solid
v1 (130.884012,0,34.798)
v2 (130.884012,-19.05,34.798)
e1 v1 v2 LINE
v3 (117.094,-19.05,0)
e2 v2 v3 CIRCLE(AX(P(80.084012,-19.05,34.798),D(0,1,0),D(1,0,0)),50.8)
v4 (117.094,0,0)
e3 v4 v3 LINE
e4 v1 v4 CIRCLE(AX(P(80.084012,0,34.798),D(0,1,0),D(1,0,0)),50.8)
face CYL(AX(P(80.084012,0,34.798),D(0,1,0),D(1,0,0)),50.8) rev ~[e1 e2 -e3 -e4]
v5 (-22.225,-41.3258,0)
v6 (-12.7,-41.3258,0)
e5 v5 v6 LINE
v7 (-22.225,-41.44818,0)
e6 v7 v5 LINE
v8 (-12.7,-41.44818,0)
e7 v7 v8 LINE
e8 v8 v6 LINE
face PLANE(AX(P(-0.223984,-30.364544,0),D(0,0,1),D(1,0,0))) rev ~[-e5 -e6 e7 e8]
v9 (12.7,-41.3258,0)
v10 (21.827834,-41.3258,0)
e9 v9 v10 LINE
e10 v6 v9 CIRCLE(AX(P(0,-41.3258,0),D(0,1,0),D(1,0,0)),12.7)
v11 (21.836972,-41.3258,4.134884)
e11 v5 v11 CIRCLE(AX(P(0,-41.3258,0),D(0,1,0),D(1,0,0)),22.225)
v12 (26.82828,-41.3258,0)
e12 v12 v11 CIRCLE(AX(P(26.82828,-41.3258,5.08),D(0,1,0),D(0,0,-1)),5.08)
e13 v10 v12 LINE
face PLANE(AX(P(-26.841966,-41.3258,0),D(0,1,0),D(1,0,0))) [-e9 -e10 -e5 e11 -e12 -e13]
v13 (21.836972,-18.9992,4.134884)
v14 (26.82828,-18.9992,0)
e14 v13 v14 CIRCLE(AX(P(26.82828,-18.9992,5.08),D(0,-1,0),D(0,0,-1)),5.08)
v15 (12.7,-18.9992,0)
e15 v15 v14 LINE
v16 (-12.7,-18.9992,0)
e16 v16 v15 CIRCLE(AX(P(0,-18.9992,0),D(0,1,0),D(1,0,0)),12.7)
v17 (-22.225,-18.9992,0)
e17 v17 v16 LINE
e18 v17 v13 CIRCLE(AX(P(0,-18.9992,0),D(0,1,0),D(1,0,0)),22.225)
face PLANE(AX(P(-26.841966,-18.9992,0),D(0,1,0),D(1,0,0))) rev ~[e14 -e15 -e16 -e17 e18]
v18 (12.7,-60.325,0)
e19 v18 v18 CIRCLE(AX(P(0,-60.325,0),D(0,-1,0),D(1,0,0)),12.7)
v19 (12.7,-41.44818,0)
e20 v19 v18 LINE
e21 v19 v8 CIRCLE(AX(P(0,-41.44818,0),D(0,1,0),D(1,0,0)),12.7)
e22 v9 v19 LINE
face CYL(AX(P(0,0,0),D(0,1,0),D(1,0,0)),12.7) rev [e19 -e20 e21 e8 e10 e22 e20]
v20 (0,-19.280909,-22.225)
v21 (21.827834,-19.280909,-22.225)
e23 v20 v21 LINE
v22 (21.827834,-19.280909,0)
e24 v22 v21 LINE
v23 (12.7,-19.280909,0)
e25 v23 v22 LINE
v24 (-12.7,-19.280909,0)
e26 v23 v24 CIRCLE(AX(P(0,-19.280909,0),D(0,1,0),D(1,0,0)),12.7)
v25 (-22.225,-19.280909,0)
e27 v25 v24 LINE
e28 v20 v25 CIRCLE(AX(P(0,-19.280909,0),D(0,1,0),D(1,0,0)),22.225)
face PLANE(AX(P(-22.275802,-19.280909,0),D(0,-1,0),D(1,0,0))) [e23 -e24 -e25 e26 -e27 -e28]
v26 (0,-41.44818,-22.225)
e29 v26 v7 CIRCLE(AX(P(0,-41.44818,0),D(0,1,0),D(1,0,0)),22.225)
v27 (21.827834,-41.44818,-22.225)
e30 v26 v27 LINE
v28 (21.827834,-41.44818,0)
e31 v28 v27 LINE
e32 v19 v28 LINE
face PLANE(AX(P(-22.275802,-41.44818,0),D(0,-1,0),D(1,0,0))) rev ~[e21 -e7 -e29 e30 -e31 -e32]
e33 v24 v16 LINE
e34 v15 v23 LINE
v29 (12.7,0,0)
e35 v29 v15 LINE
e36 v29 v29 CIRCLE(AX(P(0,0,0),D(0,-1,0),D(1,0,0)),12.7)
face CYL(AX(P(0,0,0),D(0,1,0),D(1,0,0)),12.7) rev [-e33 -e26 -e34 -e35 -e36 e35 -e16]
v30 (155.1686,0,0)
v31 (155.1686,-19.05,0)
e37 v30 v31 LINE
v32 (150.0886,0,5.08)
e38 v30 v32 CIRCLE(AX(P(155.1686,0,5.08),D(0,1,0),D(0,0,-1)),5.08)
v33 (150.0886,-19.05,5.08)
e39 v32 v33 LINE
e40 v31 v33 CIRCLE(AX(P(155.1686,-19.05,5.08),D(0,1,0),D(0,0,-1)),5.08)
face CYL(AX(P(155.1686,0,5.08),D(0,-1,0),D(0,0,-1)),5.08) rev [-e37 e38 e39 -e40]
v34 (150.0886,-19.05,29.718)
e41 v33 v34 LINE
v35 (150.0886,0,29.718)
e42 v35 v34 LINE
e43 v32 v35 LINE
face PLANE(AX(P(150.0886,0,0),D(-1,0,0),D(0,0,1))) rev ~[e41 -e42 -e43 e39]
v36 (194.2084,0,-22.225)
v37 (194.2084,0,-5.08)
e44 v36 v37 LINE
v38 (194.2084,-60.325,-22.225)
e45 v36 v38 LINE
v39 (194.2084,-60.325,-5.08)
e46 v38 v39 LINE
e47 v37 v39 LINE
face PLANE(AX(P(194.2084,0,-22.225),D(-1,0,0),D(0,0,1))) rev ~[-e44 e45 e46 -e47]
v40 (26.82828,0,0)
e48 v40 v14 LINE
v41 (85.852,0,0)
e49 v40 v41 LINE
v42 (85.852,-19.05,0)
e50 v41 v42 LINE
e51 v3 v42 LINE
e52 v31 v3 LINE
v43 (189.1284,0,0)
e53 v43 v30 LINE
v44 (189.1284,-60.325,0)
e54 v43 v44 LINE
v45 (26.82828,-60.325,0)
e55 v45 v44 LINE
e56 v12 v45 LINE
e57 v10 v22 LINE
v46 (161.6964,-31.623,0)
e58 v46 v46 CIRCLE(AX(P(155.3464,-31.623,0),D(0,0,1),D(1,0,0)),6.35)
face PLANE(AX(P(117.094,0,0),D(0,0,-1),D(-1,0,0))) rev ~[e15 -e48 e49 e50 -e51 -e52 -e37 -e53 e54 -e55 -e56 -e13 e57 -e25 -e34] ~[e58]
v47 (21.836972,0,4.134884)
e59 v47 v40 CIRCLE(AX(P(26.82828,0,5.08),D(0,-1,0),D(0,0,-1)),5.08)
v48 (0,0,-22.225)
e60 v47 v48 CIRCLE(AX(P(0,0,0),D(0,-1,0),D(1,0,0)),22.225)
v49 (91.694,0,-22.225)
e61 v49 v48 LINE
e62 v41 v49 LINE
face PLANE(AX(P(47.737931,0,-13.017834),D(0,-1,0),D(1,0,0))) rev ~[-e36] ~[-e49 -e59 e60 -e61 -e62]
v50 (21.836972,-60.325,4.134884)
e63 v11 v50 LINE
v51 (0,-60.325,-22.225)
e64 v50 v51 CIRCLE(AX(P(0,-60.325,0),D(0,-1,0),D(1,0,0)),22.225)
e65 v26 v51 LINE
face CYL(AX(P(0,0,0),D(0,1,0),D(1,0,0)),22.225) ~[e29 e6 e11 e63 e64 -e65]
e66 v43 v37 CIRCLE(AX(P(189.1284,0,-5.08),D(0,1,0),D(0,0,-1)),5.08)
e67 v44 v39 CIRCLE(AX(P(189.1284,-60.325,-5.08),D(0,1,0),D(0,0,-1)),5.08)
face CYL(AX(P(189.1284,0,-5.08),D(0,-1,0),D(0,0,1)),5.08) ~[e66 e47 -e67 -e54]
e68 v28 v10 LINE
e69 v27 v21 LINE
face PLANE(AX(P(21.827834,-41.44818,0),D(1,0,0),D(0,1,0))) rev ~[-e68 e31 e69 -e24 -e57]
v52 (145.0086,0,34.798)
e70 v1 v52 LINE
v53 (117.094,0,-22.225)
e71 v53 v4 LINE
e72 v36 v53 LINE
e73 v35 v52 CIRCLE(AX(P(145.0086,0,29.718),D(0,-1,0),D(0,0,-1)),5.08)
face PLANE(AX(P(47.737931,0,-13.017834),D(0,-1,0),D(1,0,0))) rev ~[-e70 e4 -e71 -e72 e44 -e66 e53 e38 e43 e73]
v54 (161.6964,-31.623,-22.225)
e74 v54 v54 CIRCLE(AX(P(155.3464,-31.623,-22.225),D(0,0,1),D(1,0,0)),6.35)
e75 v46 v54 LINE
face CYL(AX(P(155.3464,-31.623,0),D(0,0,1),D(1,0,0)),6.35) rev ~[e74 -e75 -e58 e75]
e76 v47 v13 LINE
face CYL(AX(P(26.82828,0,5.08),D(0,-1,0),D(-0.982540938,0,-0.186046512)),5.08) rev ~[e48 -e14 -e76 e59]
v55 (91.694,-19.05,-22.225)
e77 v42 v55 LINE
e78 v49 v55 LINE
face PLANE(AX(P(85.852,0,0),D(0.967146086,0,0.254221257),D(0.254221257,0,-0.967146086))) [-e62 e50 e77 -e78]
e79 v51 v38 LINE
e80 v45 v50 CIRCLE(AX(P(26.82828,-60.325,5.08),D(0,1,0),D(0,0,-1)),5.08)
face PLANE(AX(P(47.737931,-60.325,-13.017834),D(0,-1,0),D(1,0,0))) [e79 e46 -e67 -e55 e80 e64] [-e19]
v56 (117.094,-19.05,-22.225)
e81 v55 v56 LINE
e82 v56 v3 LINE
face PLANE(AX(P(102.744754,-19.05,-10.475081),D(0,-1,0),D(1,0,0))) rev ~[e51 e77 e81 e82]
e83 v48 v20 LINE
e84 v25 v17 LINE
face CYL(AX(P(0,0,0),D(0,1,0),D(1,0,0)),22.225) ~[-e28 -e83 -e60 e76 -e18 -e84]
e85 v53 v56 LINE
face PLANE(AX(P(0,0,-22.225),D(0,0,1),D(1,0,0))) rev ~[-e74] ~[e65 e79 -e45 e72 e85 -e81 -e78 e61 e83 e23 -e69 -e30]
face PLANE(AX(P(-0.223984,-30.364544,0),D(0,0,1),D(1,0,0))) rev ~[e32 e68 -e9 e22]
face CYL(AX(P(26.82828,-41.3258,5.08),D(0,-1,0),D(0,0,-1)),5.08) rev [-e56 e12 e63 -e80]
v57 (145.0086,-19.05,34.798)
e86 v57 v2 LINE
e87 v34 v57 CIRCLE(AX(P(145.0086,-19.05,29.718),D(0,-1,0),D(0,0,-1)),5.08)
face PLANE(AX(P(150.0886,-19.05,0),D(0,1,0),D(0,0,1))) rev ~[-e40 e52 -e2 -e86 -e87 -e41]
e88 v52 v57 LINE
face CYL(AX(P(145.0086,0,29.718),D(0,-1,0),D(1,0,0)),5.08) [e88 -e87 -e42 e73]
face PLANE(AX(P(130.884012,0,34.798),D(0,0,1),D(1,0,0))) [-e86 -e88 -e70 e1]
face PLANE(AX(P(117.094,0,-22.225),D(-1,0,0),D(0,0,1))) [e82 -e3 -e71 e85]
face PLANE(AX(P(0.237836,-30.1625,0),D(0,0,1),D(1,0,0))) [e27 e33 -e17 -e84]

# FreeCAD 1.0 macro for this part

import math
import FreeCAD as App
import Part
import Sketcher
Q = App.Units.Quantity


def edges_at(feature, points):
    """Names of the edges that pass closest to the given points."""
    edges = feature.Shape.Edges
    near = lambda p: min(range(len(edges)), key=lambda i: edges[i].distToShape(Part.Vertex(*p))[0])
    return sorted({f"Edge{near(p) + 1}" for p in points})

doc = App.newDocument("Part")
body = doc.addObject("PartDesign::Body", "Body")

# Sketch on XZ plane
sketch1 = body.newObject("Sketcher::SketchObject", "Sketch")
sketch1.AttachmentSupport = (doc.getObject("XZ_Plane"), [""])
sketch1.MapMode = "FlatFace"
sketch1.addGeometry(Part.ArcOfCircle(Part.Circle(App.Vector(0, 0, 0), App.Vector(0, 0, 1), 22), math.radians(0), math.radians(270)), False)
sketch1.addGeometry(Part.LineSegment(App.Vector(0, -22, 0), App.Vector(194, -22, 0)), False)
sketch1.addGeometry(Part.LineSegment(App.Vector(194, -22, 0), App.Vector(194, 0, 0)), False)
sketch1.addGeometry(Part.LineSegment(App.Vector(194, 0, 0), App.Vector(150, 0, 0)), False)
sketch1.addGeometry(Part.LineSegment(App.Vector(150, 0, 0), App.Vector(150, 35, 0)), False)
sketch1.addGeometry(Part.LineSegment(App.Vector(150, 35, 0), App.Vector(131, 35, 0)), False)
sketch1.addGeometry(Part.ArcOfCircle(Part.Circle(App.Vector(80, 35, 0), App.Vector(0, 0, 1), 51), math.radians(-43), math.radians(0)), False)
sketch1.addGeometry(Part.LineSegment(App.Vector(117, 0, 0), App.Vector(22, 0, 0)), False)
sketch1.addGeometry(Part.Circle(App.Vector(0, 0, 0), App.Vector(0, 0, 1), 13), False)
sketch1.addConstraint(Sketcher.Constraint("Tangent", 0, 2, 1, 1))
sketch1.addConstraint(Sketcher.Constraint("Coincident", 1, 2, 2, 1))
sketch1.addConstraint(Sketcher.Constraint("Coincident", 2, 2, 3, 1))
sketch1.addConstraint(Sketcher.Constraint("Coincident", 3, 2, 4, 1))
sketch1.addConstraint(Sketcher.Constraint("Coincident", 4, 2, 5, 1))
sketch1.addConstraint(Sketcher.Constraint("Coincident", 5, 2, 6, 2))
sketch1.addConstraint(Sketcher.Constraint("Coincident", 6, 1, 7, 1))
sketch1.addConstraint(Sketcher.Constraint("Coincident", 7, 2, 0, 1))
sketch1.addConstraint(Sketcher.Constraint("Horizontal", 1))
sketch1.addConstraint(Sketcher.Constraint("Vertical", 2))
sketch1.addConstraint(Sketcher.Constraint("Horizontal", 3))
sketch1.addConstraint(Sketcher.Constraint("Vertical", 4))
sketch1.addConstraint(Sketcher.Constraint("Horizontal", 5))
sketch1.addConstraint(Sketcher.Constraint("Horizontal", 7))
sketch1.addConstraint(Sketcher.Constraint("Coincident", 0, 3, -1, 1))
sketch1.addConstraint(Sketcher.Constraint("Coincident", 8, 3, -1, 1))
sketch1.addConstraint(Sketcher.Constraint("PointOnObject", 2, 2, -1))
sketch1.addConstraint(Sketcher.Constraint("PointOnObject", 6, 1, -1))
sketch1.addConstraint(Sketcher.Constraint("Horizontal", 6, 3, 4, 2))
sketch1.addConstraint(Sketcher.Constraint("Diameter", 8, Q("1 in")))
sketch1.addConstraint(Sketcher.Constraint("Radius", 6, Q("2 in")))
sketch1.addConstraint(Sketcher.Constraint("Radius", 0, Q("0.875 in")))
sketch1.addConstraint(Sketcher.Constraint("DistanceY", 4, 1, 4, 2, Q("1.37 in")))
sketch1.addConstraint(Sketcher.Constraint("DistanceX", 1, 1, 1, 2, Q("7.646 in")))
sketch1.addConstraint(Sketcher.Constraint("DistanceX", 3, 2, 3, 1, Q("1.737 in")))
sketch1.addConstraint(Sketcher.Constraint("DistanceX", 7, 2, 7, 1, Q("3.735 in")))
pad1 = body.newObject("PartDesign::Pad", "Pad")
pad1.Profile = sketch1
pad1.Length = Q("2.375 in")

# Sketch on XY plane
sketch2 = body.newObject("Sketcher::SketchObject", "Sketch001")
sketch2.AttachmentSupport = (doc.getObject("XY_Plane"), [""])
sketch2.MapMode = "FlatFace"
sketch2.addGeometry(Part.LineSegment(App.Vector(-27, -19, 0), App.Vector(-27, -41, 0)), False)
sketch2.addGeometry(Part.LineSegment(App.Vector(-27, -41, 0), App.Vector(27, -41, 0)), False)
sketch2.addGeometry(Part.LineSegment(App.Vector(27, -41, 0), App.Vector(27, -19, 0)), False)
sketch2.addGeometry(Part.LineSegment(App.Vector(27, -19, 0), App.Vector(-27, -19, 0)), False)
sketch2.addConstraint(Sketcher.Constraint("Coincident", 0, 2, 1, 1))
sketch2.addConstraint(Sketcher.Constraint("Coincident", 1, 2, 2, 1))
sketch2.addConstraint(Sketcher.Constraint("Coincident", 2, 2, 3, 1))
sketch2.addConstraint(Sketcher.Constraint("Coincident", 3, 2, 0, 1))
sketch2.addConstraint(Sketcher.Constraint("Vertical", 0))
sketch2.addConstraint(Sketcher.Constraint("Horizontal", 1))
sketch2.addConstraint(Sketcher.Constraint("Vertical", 2))
sketch2.addConstraint(Sketcher.Constraint("Horizontal", 3))
sketch2.addConstraint(Sketcher.Constraint("DistanceY", 0, 2, 0, 1, Q("0.879 in")))
sketch2.addConstraint(Sketcher.Constraint("DistanceY", 0, 2, -1, 1, Q("1.627 in")))
sketch2.addConstraint(Sketcher.Constraint("DistanceX", 1, 1, 1, 2, 54.159603))
sketch2.addConstraint(Sketcher.Constraint("DistanceX", 0, 2, -1, 1, 26.841966))
pocket1 = body.newObject("PartDesign::Pocket", "Pocket")
pocket1.Profile = sketch2
pocket1.Type = "ThroughAll"
pocket1.Reversed = True

# Sketch on XY plane
sketch3 = body.newObject("Sketcher::SketchObject", "Sketch002")
sketch3.AttachmentSupport = (doc.getObject("XY_Plane"), [""])
sketch3.MapMode = "FlatFace"
sketch3.addGeometry(Part.LineSegment(App.Vector(-22, -19, 0), App.Vector(-22, -41, 0)), False)
sketch3.addGeometry(Part.LineSegment(App.Vector(-22, -41, 0), App.Vector(22, -41, 0)), False)
sketch3.addGeometry(Part.LineSegment(App.Vector(22, -41, 0), App.Vector(22, -19, 0)), False)
sketch3.addGeometry(Part.LineSegment(App.Vector(22, -19, 0), App.Vector(-22, -19, 0)), False)
sketch3.addConstraint(Sketcher.Constraint("Coincident", 0, 2, 1, 1))
sketch3.addConstraint(Sketcher.Constraint("Coincident", 1, 2, 2, 1))
sketch3.addConstraint(Sketcher.Constraint("Coincident", 2, 2, 3, 1))
sketch3.addConstraint(Sketcher.Constraint("Coincident", 3, 2, 0, 1))
sketch3.addConstraint(Sketcher.Constraint("Vertical", 0))
sketch3.addConstraint(Sketcher.Constraint("Horizontal", 1))
sketch3.addConstraint(Sketcher.Constraint("Vertical", 2))
sketch3.addConstraint(Sketcher.Constraint("Horizontal", 3))
sketch3.addConstraint(Sketcher.Constraint("DistanceX", 0, 2, -1, 1, Q("0.8770001 in")))
sketch3.addConstraint(Sketcher.Constraint("DistanceY", 0, 2, 0, 1, 22.167271))
sketch3.addConstraint(Sketcher.Constraint("DistanceX", 1, 1, 1, 2, 44.103635))
sketch3.addConstraint(Sketcher.Constraint("DistanceY", 0, 2, -1, 1, 41.44818))
pocket2 = body.newObject("PartDesign::Pocket", "Pocket001")
pocket2.Profile = sketch3
pocket2.Length = Q("1 in")

# Sketch on XZ plane
sketch4 = body.newObject("Sketcher::SketchObject", "Sketch003")
sketch4.AttachmentSupport = (doc.getObject("XZ_Plane"), [""])
sketch4.MapMode = "FlatFace"
sketch4.addGeometry(Part.LineSegment(App.Vector(117, 0, 0), App.Vector(86, 0, 0)), False)
sketch4.addGeometry(Part.LineSegment(App.Vector(86, 0, 0), App.Vector(92, -22, 0)), False)
sketch4.addGeometry(Part.LineSegment(App.Vector(92, -22, 0), App.Vector(117, -22, 0)), False)
sketch4.addGeometry(Part.LineSegment(App.Vector(117, -22, 0), App.Vector(117, 0, 0)), False)
sketch4.addConstraint(Sketcher.Constraint("Coincident", 0, 2, 1, 1))
sketch4.addConstraint(Sketcher.Constraint("Coincident", 1, 2, 2, 1))
sketch4.addConstraint(Sketcher.Constraint("Coincident", 2, 2, 3, 1))
sketch4.addConstraint(Sketcher.Constraint("Coincident", 3, 2, 0, 1))
sketch4.addConstraint(Sketcher.Constraint("Horizontal", 0))
sketch4.addConstraint(Sketcher.Constraint("Horizontal", 2))
sketch4.addConstraint(Sketcher.Constraint("Vertical", 3))
sketch4.addConstraint(Sketcher.Constraint("PointOnObject", 0, 2, -1))
sketch4.addConstraint(Sketcher.Constraint("DistanceX", 2, 1, 2, 2, Q("1 in")))
sketch4.addConstraint(Sketcher.Constraint("DistanceX", 0, 2, 0, 1, Q("1.23 in")))
sketch4.addConstraint(Sketcher.Constraint("DistanceY", 3, 1, 3, 2, Q("0.875 in")))
sketch4.addConstraint(Sketcher.Constraint("DistanceX", -1, 1, 0, 2, Q("3.38 in")))
pocket3 = body.newObject("PartDesign::Pocket", "Pocket002")
pocket3.Profile = sketch4
pocket3.Length = Q("0.75 in")

# Sketch on XZ plane
sketch5 = body.newObject("Sketcher::SketchObject", "Sketch004")
sketch5.AttachmentSupport = (doc.getObject("XZ_Plane"), [""])
sketch5.MapMode = "FlatFace"
sketch5.addGeometry(Part.LineSegment(App.Vector(117, 0, 0), App.Vector(86, 0, 0)), False)
sketch5.addGeometry(Part.LineSegment(App.Vector(86, 0, 0), App.Vector(92, -22, 0)), False)
sketch5.addGeometry(Part.LineSegment(App.Vector(92, -22, 0), App.Vector(117, -22, 0)), False)
sketch5.addGeometry(Part.LineSegment(App.Vector(117, -22, 0), App.Vector(117, 0, 0)), False)
sketch5.addConstraint(Sketcher.Constraint("Coincident", 0, 2, 1, 1))
sketch5.addConstraint(Sketcher.Constraint("Coincident", 1, 2, 2, 1))
sketch5.addConstraint(Sketcher.Constraint("Coincident", 2, 2, 3, 1))
sketch5.addConstraint(Sketcher.Constraint("Coincident", 3, 2, 0, 1))
sketch5.addConstraint(Sketcher.Constraint("Horizontal", 0))
sketch5.addConstraint(Sketcher.Constraint("Horizontal", 2))
sketch5.addConstraint(Sketcher.Constraint("Vertical", 3))
sketch5.addConstraint(Sketcher.Constraint("PointOnObject", 0, 2, -1))
sketch5.addConstraint(Sketcher.Constraint("DistanceX", 2, 1, 2, 2, Q("1 in")))
sketch5.addConstraint(Sketcher.Constraint("DistanceX", 0, 2, 0, 1, Q("1.23 in")))
sketch5.addConstraint(Sketcher.Constraint("DistanceY", 3, 1, 3, 2, Q("0.875 in")))
sketch5.addConstraint(Sketcher.Constraint("DistanceX", -1, 1, 0, 2, Q("3.38 in")))
pocket4 = body.newObject("PartDesign::Pocket", "Pocket003")
pocket4.Profile = sketch5
pocket4.Length = Q("0.75 in")
pocket4.Reversed = True

# Sketch on YZ plane
sketch6 = body.newObject("Sketcher::SketchObject", "Sketch005")
sketch6.AttachmentSupport = (doc.getObject("YZ_Plane"), [""])
sketch6.MapMode = "FlatFace"
sketch6.AttachmentOffset = App.Placement(App.Vector(0, 0, 5.909 * 25.4), App.Rotation())
sketch6.addGeometry(Part.LineSegment(App.Vector(-60, 35, 0), App.Vector(-60, 0, 0)), False)
sketch6.addGeometry(Part.LineSegment(App.Vector(-60, 0, 0), App.Vector(-19, 0, 0)), False)
sketch6.addGeometry(Part.LineSegment(App.Vector(-19, 0, 0), App.Vector(-19, 35, 0)), False)
sketch6.addGeometry(Part.LineSegment(App.Vector(-19, 35, 0), App.Vector(-60, 35, 0)), False)
sketch6.addConstraint(Sketcher.Constraint("Coincident", 0, 2, 1, 1))
sketch6.addConstraint(Sketcher.Constraint("Coincident", 1, 2, 2, 1))
sketch6.addConstraint(Sketcher.Constraint("Coincident", 2, 2, 3, 1))
sketch6.addConstraint(Sketcher.Constraint("Coincident", 3, 2, 0, 1))
sketch6.addConstraint(Sketcher.Constraint("Vertical", 0))
sketch6.addConstraint(Sketcher.Constraint("Horizontal", 1))
sketch6.addConstraint(Sketcher.Constraint("Vertical", 2))
sketch6.addConstraint(Sketcher.Constraint("Horizontal", 3))
sketch6.addConstraint(Sketcher.Constraint("PointOnObject", 0, 2, -1))
sketch6.addConstraint(Sketcher.Constraint("DistanceY", 0, 2, 0, 1, Q("1.37 in")))
sketch6.addConstraint(Sketcher.Constraint("DistanceX", 1, 1, 1, 2, Q("1.625 in")))
sketch6.addConstraint(Sketcher.Constraint("DistanceX", 1, 2, -1, 1, Q("0.75 in")))
pocket5 = body.newObject("PartDesign::Pocket", "Pocket004")
pocket5.Profile = sketch6
pocket5.Length = Q("2 in")

# Sketch on XY plane
sketch7 = body.newObject("Sketcher::SketchObject", "Sketch006")
sketch7.AttachmentSupport = (doc.getObject("XY_Plane"), [""])
sketch7.MapMode = "FlatFace"
sketch7.addGeometry(Part.Circle(App.Vector(155, -32, 0), App.Vector(0, 0, 1), 6), False)
sketch7.addConstraint(Sketcher.Constraint("Diameter", 0, Q("0.5 in")))
sketch7.addConstraint(Sketcher.Constraint("DistanceX", -1, 1, 0, 3, Q("6.116 in")))
sketch7.addConstraint(Sketcher.Constraint("DistanceY", 0, 3, -1, 1, Q("1.245 in")))
pocket6 = body.newObject("PartDesign::Pocket", "Pocket005")
pocket6.Profile = sketch7
pocket6.Type = "ThroughAll"
doc.recompute()

fillet = body.newObject("PartDesign::Fillet", "Fillet")
fillet.Base = (pocket6, edges_at(pocket6, [
    (150.089, -9.525, 34.798),
    (150.089, -9.525, 0),
    (194.208, -30.163, 0),
    (22.225, -50.825, 0),
    (22.225, -9.5, 0),
]))
fillet.Radius = Q("0.2 in")

doc.recompute()
